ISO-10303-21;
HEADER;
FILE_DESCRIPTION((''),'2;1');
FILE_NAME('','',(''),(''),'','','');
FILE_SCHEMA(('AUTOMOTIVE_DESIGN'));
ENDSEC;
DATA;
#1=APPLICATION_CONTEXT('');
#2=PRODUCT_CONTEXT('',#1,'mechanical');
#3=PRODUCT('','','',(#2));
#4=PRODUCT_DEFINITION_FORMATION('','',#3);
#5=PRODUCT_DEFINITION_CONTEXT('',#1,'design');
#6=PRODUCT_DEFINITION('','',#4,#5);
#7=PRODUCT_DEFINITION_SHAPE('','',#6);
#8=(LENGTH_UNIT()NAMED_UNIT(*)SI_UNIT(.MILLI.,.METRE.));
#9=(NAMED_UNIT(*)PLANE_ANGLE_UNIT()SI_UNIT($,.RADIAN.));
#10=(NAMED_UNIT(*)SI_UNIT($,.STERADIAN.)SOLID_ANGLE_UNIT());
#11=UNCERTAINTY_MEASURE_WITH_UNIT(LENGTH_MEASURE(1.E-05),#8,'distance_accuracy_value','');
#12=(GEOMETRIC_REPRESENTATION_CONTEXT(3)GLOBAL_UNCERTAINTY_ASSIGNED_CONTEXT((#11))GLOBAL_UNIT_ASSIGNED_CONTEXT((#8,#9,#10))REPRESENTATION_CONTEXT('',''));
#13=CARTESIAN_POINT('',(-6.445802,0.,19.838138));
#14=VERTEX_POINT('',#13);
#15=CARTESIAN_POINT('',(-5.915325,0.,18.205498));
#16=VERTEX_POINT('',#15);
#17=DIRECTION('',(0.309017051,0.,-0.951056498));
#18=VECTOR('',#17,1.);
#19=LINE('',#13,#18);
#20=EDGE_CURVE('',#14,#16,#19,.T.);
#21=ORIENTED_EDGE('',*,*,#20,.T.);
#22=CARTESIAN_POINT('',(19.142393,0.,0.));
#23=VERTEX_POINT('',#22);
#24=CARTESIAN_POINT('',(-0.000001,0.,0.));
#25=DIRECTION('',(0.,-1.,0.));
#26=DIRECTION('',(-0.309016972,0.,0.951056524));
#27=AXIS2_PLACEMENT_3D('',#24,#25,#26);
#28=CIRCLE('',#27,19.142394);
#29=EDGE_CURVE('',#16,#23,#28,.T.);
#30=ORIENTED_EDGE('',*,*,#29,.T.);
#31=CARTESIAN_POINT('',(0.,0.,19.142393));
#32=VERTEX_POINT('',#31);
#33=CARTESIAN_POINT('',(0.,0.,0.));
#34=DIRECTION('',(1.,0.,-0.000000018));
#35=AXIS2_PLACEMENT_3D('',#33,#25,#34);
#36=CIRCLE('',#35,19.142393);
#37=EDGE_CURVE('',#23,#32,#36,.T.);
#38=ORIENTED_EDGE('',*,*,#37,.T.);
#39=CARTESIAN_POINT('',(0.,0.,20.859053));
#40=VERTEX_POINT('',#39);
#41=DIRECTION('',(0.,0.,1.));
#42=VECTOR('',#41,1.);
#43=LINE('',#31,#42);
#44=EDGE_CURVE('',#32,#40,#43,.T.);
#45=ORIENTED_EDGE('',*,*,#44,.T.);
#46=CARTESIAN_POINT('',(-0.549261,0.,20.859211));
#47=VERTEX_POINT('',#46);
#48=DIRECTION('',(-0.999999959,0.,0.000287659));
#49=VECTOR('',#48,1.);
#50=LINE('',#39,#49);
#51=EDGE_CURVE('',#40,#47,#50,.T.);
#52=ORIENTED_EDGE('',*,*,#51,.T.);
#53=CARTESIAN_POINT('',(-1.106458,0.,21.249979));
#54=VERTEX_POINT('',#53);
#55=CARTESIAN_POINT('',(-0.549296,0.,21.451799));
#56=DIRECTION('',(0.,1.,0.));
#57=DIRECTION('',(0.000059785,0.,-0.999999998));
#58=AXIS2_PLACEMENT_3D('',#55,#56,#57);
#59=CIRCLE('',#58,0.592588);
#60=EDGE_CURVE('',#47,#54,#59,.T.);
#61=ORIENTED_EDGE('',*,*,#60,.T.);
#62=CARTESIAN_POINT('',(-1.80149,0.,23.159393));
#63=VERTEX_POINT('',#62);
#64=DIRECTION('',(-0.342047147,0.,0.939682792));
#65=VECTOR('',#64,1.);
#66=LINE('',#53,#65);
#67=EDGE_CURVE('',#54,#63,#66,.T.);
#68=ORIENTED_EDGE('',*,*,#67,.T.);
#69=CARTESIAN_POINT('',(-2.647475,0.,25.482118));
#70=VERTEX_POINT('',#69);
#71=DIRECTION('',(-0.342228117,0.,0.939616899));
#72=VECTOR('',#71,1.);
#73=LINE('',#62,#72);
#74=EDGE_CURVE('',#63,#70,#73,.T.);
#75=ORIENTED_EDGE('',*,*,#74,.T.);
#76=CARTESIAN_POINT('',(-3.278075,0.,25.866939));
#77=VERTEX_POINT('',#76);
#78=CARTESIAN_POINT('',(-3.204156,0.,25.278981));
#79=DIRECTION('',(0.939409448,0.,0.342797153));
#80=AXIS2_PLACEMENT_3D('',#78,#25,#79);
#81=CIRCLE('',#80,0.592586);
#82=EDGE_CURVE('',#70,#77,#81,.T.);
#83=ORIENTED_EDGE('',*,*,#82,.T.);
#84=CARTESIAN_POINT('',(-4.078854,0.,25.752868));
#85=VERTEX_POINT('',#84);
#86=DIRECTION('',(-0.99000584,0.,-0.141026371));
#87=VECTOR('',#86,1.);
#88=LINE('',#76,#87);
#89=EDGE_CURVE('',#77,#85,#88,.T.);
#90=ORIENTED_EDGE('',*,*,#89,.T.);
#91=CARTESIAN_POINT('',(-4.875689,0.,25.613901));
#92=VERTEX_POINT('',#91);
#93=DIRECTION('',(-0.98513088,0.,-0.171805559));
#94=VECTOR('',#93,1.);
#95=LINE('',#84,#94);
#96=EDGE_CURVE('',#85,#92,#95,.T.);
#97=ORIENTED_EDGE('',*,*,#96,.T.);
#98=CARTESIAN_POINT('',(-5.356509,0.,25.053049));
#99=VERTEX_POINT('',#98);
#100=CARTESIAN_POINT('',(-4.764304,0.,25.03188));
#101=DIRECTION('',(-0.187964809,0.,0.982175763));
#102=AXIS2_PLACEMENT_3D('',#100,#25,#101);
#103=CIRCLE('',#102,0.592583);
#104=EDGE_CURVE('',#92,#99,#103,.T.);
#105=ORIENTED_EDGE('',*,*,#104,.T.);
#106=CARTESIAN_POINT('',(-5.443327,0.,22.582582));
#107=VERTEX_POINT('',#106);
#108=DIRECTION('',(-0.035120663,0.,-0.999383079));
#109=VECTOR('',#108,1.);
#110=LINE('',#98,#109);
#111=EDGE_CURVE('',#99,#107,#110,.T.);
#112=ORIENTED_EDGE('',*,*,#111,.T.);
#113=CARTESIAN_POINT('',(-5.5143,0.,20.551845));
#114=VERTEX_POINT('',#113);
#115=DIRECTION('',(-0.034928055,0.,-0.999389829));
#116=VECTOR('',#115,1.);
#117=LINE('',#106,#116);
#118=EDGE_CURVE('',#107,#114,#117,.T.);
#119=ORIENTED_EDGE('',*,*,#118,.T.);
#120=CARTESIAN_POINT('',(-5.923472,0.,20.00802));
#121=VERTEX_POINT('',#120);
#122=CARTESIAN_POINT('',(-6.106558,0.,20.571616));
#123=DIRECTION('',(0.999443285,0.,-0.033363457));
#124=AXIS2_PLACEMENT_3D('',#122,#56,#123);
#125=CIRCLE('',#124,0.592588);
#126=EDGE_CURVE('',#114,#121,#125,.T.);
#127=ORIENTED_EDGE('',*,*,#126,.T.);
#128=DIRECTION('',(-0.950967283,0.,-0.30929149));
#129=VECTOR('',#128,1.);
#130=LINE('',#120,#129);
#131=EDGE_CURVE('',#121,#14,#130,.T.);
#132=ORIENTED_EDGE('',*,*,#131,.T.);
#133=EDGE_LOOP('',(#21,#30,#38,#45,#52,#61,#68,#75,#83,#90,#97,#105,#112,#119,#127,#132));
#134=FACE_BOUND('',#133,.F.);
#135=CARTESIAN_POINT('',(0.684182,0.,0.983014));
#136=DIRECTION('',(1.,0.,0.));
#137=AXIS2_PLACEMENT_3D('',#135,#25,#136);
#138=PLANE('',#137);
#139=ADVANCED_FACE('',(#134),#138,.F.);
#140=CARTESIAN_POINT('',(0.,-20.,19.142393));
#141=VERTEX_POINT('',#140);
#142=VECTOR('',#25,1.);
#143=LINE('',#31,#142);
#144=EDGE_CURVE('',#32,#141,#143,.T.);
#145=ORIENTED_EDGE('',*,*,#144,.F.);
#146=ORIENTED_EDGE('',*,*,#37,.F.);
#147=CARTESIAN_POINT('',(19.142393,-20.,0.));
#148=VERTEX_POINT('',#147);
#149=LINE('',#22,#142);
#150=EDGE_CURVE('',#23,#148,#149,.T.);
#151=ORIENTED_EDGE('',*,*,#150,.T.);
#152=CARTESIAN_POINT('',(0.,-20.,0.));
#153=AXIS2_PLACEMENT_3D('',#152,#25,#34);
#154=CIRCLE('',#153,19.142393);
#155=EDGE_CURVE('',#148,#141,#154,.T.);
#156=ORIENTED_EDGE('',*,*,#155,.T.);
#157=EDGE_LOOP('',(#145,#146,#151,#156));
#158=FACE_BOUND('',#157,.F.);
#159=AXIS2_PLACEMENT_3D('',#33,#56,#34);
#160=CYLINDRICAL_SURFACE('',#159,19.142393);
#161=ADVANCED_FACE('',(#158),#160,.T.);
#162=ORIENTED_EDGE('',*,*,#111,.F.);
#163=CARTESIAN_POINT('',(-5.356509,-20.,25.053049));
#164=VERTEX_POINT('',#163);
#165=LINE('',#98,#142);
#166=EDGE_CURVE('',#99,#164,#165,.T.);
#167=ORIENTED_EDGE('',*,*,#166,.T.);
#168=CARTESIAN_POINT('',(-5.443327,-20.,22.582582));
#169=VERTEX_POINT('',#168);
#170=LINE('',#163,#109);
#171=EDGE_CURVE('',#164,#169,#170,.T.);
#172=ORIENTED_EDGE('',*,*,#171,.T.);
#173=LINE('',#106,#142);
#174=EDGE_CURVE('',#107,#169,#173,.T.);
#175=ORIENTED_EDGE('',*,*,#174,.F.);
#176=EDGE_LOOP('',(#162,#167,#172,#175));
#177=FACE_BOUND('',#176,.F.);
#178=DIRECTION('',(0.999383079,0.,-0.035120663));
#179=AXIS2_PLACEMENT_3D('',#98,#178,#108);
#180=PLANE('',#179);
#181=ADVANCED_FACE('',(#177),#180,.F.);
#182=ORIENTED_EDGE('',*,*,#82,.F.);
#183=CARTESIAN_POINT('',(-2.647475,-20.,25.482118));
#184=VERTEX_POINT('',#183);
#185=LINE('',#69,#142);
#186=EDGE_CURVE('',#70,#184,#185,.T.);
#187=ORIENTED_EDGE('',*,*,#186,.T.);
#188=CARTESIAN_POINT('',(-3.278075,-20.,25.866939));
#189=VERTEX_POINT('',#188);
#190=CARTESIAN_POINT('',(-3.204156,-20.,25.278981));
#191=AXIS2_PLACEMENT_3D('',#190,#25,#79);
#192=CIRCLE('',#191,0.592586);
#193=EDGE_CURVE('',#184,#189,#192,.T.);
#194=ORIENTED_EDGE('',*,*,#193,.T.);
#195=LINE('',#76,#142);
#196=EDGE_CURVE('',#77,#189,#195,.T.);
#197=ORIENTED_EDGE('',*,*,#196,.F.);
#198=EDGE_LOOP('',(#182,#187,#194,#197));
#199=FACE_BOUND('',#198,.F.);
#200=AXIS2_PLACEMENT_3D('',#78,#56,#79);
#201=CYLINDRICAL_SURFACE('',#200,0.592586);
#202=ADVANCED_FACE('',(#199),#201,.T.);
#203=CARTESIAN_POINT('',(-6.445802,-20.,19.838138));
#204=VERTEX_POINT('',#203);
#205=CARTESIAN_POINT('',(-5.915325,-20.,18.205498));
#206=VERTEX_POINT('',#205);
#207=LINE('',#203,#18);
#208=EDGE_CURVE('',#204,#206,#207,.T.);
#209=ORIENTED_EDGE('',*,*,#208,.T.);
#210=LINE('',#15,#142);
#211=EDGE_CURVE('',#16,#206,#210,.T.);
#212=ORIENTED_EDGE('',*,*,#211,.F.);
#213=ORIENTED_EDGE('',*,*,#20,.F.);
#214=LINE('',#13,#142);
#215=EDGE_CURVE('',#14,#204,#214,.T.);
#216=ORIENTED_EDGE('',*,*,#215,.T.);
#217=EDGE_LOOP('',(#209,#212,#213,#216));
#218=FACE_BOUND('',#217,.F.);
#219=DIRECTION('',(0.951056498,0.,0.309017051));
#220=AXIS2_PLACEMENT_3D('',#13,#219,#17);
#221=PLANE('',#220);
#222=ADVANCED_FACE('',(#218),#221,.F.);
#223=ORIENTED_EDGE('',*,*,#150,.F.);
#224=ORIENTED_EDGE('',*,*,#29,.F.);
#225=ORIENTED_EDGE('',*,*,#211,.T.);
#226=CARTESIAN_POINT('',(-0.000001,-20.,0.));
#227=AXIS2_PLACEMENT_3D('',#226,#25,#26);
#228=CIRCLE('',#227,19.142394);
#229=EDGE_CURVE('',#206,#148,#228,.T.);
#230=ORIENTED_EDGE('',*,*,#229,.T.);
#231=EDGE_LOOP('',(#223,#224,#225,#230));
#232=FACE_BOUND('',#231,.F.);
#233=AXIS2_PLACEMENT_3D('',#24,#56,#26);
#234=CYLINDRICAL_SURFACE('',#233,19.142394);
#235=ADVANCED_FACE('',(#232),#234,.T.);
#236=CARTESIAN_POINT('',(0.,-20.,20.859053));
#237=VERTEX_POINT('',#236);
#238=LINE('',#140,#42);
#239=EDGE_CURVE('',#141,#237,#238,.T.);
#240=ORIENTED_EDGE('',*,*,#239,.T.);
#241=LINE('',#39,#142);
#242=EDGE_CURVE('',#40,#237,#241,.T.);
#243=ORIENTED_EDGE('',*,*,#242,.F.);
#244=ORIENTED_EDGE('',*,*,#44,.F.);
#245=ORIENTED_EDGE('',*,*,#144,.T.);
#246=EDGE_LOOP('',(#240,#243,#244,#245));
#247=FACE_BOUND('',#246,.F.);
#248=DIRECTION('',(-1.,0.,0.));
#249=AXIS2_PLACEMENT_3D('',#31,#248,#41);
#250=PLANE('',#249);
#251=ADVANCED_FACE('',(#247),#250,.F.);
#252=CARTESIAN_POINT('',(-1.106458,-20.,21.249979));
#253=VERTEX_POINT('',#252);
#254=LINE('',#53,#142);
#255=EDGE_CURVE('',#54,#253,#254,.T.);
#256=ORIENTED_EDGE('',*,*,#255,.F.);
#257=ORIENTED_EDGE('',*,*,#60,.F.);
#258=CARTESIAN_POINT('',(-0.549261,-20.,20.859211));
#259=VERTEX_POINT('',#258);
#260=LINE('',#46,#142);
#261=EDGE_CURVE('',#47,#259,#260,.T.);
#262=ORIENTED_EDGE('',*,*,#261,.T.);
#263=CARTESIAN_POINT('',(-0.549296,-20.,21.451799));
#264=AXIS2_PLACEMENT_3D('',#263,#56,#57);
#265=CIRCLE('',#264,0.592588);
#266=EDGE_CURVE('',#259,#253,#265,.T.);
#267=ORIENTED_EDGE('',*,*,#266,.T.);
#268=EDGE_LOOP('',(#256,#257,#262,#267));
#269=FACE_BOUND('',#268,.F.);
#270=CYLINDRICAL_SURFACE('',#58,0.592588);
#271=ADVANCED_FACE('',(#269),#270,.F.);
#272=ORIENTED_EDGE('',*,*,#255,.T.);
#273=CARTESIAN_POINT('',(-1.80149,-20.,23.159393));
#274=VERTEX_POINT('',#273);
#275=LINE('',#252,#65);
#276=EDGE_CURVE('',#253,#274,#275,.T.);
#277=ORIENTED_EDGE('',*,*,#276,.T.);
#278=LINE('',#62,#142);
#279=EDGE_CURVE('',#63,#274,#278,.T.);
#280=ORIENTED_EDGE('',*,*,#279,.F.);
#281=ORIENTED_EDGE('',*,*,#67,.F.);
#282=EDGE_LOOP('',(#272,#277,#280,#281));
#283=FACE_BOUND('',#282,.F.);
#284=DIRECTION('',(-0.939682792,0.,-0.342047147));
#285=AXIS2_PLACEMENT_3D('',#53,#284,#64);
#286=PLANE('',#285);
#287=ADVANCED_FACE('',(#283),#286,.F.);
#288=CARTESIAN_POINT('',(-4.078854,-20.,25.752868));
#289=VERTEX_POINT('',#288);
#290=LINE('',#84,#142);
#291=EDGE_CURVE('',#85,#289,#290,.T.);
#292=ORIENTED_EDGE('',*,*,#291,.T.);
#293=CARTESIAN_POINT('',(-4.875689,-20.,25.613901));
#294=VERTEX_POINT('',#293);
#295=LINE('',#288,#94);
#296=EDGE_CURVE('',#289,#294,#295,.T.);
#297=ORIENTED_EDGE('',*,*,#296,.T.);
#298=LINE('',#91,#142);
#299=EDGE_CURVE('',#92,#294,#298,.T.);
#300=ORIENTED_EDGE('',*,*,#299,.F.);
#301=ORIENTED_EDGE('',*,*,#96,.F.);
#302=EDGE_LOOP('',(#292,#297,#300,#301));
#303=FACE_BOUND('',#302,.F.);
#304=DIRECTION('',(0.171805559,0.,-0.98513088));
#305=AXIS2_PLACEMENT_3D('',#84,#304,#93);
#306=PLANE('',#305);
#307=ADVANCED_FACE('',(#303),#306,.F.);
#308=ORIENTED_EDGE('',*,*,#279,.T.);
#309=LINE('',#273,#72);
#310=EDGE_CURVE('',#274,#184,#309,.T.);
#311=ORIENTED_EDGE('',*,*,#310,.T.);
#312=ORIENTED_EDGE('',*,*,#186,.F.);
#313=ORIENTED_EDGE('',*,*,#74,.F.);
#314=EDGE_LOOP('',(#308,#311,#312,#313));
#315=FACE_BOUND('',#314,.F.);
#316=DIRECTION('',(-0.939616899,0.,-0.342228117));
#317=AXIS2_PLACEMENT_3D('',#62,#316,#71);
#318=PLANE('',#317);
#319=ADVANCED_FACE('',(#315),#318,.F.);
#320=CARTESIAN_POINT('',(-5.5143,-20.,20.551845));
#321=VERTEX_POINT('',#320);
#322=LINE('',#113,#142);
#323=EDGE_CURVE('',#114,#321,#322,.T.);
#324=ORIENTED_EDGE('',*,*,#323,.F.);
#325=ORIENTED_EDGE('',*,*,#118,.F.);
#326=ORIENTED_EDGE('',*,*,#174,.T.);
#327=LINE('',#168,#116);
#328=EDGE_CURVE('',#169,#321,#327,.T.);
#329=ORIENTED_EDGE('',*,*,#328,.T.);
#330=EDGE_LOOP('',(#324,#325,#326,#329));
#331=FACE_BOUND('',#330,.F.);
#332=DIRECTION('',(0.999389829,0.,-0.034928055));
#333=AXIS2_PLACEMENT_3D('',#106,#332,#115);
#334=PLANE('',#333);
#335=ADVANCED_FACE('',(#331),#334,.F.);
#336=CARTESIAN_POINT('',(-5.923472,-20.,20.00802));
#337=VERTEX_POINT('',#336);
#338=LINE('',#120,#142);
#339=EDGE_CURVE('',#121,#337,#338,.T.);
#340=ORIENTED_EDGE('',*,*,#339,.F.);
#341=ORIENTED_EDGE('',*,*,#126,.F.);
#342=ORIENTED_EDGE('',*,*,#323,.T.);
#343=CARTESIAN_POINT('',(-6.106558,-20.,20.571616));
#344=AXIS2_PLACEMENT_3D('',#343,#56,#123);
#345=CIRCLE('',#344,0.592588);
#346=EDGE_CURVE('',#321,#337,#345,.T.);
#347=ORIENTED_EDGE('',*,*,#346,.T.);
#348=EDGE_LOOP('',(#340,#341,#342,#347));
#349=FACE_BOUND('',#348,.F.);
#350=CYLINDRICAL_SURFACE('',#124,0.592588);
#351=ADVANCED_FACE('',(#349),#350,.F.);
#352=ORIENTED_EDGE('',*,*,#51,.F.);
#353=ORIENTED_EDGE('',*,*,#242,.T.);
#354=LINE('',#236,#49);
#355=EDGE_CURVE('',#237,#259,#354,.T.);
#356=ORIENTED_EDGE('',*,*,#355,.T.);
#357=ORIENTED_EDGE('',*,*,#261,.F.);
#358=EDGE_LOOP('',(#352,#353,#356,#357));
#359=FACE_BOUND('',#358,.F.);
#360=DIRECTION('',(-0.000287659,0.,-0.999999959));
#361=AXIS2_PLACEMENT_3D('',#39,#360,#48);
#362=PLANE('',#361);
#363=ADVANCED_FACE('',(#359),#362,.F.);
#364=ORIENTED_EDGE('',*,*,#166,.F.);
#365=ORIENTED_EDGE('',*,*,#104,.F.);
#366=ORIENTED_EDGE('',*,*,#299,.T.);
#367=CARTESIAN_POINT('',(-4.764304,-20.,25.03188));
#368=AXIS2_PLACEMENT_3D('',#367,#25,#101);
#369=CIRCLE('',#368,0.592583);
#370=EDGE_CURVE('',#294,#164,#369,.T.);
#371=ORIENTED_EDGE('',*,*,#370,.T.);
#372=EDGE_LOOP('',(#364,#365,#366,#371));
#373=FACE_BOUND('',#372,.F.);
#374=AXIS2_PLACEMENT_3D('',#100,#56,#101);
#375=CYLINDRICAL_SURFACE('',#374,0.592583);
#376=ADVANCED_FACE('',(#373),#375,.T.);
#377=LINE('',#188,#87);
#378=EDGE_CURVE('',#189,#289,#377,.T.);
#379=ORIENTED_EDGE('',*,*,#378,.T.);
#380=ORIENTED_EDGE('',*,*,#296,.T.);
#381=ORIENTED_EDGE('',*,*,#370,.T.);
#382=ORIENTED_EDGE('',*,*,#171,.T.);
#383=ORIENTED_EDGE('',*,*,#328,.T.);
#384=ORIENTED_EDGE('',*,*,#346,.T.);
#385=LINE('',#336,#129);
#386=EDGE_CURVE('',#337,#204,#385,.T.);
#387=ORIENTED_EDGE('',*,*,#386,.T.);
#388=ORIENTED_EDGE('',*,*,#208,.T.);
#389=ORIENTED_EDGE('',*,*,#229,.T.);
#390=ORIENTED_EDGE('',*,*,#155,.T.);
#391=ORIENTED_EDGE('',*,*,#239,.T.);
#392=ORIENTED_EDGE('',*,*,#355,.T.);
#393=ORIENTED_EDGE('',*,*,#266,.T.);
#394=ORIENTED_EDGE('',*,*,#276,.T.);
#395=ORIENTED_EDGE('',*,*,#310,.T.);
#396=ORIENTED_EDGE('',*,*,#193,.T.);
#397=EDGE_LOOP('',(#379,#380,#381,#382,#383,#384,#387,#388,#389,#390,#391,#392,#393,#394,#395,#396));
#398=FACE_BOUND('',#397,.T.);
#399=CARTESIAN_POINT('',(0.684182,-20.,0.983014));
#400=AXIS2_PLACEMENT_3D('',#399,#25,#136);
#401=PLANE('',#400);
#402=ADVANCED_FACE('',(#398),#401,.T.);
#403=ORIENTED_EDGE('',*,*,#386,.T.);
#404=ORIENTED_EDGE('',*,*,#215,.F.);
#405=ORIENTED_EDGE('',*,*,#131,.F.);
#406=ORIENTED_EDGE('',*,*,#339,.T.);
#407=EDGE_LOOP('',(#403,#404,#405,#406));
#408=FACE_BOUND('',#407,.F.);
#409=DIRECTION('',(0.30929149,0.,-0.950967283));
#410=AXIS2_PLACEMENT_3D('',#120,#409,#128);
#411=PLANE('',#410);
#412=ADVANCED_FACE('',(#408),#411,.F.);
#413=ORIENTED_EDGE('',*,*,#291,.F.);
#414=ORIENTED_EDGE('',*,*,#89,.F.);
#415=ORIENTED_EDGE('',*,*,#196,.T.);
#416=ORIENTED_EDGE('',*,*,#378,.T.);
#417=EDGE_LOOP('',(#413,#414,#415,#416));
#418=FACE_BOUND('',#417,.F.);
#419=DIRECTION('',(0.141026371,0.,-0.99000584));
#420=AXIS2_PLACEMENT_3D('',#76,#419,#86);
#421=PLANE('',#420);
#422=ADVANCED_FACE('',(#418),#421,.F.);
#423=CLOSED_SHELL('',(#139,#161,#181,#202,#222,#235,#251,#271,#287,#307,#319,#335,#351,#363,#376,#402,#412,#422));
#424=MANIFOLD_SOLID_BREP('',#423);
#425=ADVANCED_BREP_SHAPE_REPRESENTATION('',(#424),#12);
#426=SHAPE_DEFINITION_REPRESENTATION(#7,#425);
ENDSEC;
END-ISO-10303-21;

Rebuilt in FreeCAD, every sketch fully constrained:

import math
import FreeCAD as App
import Part
import Sketcher

V = App.Vector
Q = App.Units.Quantity

doc = App.newDocument("Part")
body = doc.addObject("PartDesign::Body", "Body")

sketch1 = body.newObject("Sketcher::SketchObject", "Sketch")
sketch1.AttachmentSupport = (doc.getObject("XZ_Plane"), [""])
sketch1.MapMode = "FlatFace"
sketch1.addGeometry(Part.ArcOfCircle(Part.Circle(V(-0.000001, 0, 0), V(0, 0, 1), 19.142394), math.radians(107.999999), math.radians(360.000001)), False)
sketch1.addGeometry(Part.ArcOfCircle(Part.Circle(V(0, 0, 0), V(0, 0, 1), 19.142393), math.radians(-0.000001), math.radians(90.000001)), False)
sketch1.addGeometry(Part.LineSegment(V(0, 19.142393, 0), V(0, 20.859053, 0)), False)
sketch1.addGeometry(Part.LineSegment(V(0, 20.859053, 0), V(-0.549261, 20.859211, 0)), False)
sketch1.addGeometry(Part.ArcOfCircle(Part.Circle(V(-0.549296, 21.451799, 0), V(0, 0, 1), 0.592588), math.radians(-160.088176), math.radians(-89.996575)), False)
sketch1.addGeometry(Part.LineSegment(V(-1.106458, 21.249979, 0), V(-1.80149, 23.159393, 0)), False)
sketch1.addGeometry(Part.LineSegment(V(-1.80149, 23.159393, 0), V(-2.647475, 25.482118, 0)), False)
sketch1.addGeometry(Part.ArcOfCircle(Part.Circle(V(-3.204156, 25.278981, 0), V(0, 0, 1), 0.592586), math.radians(20.047384), math.radians(97.165709)), False)
sketch1.addGeometry(Part.LineSegment(V(-3.278075, 25.866939, 0), V(-4.078854, 25.752868, 0)), False)
sketch1.addGeometry(Part.LineSegment(V(-4.078854, 25.752868, 0), V(-4.875689, 25.613901, 0)), False)
sketch1.addGeometry(Part.ArcOfCircle(Part.Circle(V(-4.764304, 25.03188, 0), V(0, 0, 1), 0.592583), math.radians(100.834037), math.radians(177.952808)), False)
sketch1.addGeometry(Part.LineSegment(V(-5.356509, 25.053049, 0), V(-5.443327, 22.582582, 0)), False)
sketch1.addGeometry(Part.LineSegment(V(-5.443327, 22.582582, 0), V(-5.5143, 20.551845, 0)), False)
sketch1.addGeometry(Part.ArcOfCircle(Part.Circle(V(-6.106558, 20.571616, 0), V(0, 0, 1), 0.592588), math.radians(-72.003406), math.radians(-1.91194)), False)
sketch1.addGeometry(Part.LineSegment(V(-5.923472, 20.00802, 0), V(-6.445802, 19.838138, 0)), False)
sketch1.addGeometry(Part.LineSegment(V(-6.445802, 19.838138, 0), V(-5.915325, 18.205498, 0)), False)
sketch1.addConstraint(Sketcher.Constraint("Tangent", 0, 2, 1, 1))
sketch1.addConstraint(Sketcher.Constraint("Coincident", 1, 2, 2, 1))
sketch1.addConstraint(Sketcher.Constraint("Coincident", 2, 2, 3, 1))
sketch1.addConstraint(Sketcher.Constraint("Coincident", 3, 2, 4, 2))
sketch1.addConstraint(Sketcher.Constraint("Coincident", 4, 1, 5, 1))
sketch1.addConstraint(Sketcher.Constraint("Coincident", 5, 2, 6, 1))
sketch1.addConstraint(Sketcher.Constraint("Coincident", 6, 2, 7, 1))
sketch1.addConstraint(Sketcher.Constraint("Coincident", 7, 2, 8, 1))
sketch1.addConstraint(Sketcher.Constraint("Coincident", 8, 2, 9, 1))
sketch1.addConstraint(Sketcher.Constraint("Coincident", 9, 2, 10, 1))
sketch1.addConstraint(Sketcher.Constraint("Coincident", 10, 2, 11, 1))
sketch1.addConstraint(Sketcher.Constraint("Coincident", 11, 2, 12, 1))
sketch1.addConstraint(Sketcher.Constraint("Coincident", 12, 2, 13, 2))
sketch1.addConstraint(Sketcher.Constraint("Coincident", 13, 1, 14, 1))
sketch1.addConstraint(Sketcher.Constraint("Coincident", 14, 2, 15, 1))
sketch1.addConstraint(Sketcher.Constraint("Coincident", 15, 2, 0, 1))
sketch1.addConstraint(Sketcher.Constraint("Vertical", 2))
sketch1.addConstraint(Sketcher.Constraint("Coincident", 0, 3, -1, 1))
sketch1.addConstraint(Sketcher.Constraint("Equal", 0, 1))
sketch1.addConstraint(Sketcher.Constraint("Equal", 4, 7))
sketch1.addConstraint(Sketcher.Constraint("Equal", 7, 13))
sketch1.addConstraint(Sketcher.Constraint("PointOnObject", 0, 2, -1))
sketch1.addConstraint(Sketcher.Constraint("PointOnObject", 1, 2, -2))
sketch1.addConstraint(Sketcher.Constraint("Equal", 8, 9))
sketch1.addConstraint(Sketcher.Constraint("Equal", 6, 11))
sketch1.addConstraint(Sketcher.Constraint("Equal", 5, 12))
sketch1.addConstraint(Sketcher.Constraint("Equal", 3, 14))
sketch1.addConstraint(Sketcher.Constraint("Angle", 15, Q("-71.999997 deg")))
sketch1.addConstraint(Sketcher.Constraint("Radius", 13, Q("0.592588 mm")))
sketch1.addConstraint(Sketcher.Constraint("Radius", 0, Q("19.142394 mm")))
sketch1.addConstraint(Sketcher.Constraint("Radius", 10, Q("0.592583 mm")))
sketch1.addConstraint(Sketcher.Constraint("DistanceX", 15, 2, 11, 2, Q("0.471998 mm")))
sketch1.addConstraint(Sketcher.Constraint("DistanceY", 2, 1, 2, 2, Q("1.71666 mm")))
sketch1.addConstraint(Sketcher.Constraint("DistanceY", -1, 1, 4, 3, Q("21.451799 mm")))
sketch1.addConstraint(Sketcher.Constraint("DistanceY", -1, 1, 9, 2, Q("25.613901 mm")))
sketch1.addConstraint(Sketcher.Constraint("DistanceX", 12, 2, -1, 1, Q("5.5143 mm")))
sketch1.addConstraint(Sketcher.Constraint("DistanceX", 14, 2, -1, 1, Q("6.445802 mm")))
sketch1.addConstraint(Sketcher.Constraint("DistanceY", 10, 3, 7, 3, Q("0.247101 mm")))
sketch1.addConstraint(Sketcher.Constraint("DistanceX", 7, 3, 4, 1, Q("2.097698 mm")))
sketch1.addConstraint(Sketcher.Constraint("DistanceX", 7, 2, 6, 2, Q("0.6306 mm")))
sketch1.addConstraint(Sketcher.Constraint("DistanceY", 11, 2, 10, 3, Q("2.449298 mm")))
sketch1.addConstraint(Sketcher.Constraint("Distance", 3, Q("0.549261 mm")))
sketch1.addConstraint(Sketcher.Constraint("Distance", 6, Q("2.471992 mm")))
sketch1.addConstraint(Sketcher.Constraint("Distance", 15, Q("1.716659 mm")))
sketch1.addConstraint(Sketcher.Constraint("DistanceY", -1, 1, 7, 3, Q("25.278981 mm")))
sketch1.addConstraint(Sketcher.Constraint("DistanceX", 13, 3, -1, 1, Q("6.106558 mm")))
sketch1.addConstraint(Sketcher.Constraint("DistanceY", -1, 1, 4, 1, Q("21.249979 mm")))
sketch1.addConstraint(Sketcher.Constraint("DistanceX", 5, 2, -1, 1, Q("1.80149 mm")))
sketch1.addConstraint(Sketcher.Constraint("DistanceY", -1, 1, 6, 2, Q("25.482118 mm")))
sketch1.addConstraint(Sketcher.Constraint("DistanceX", 9, 2, -1, 1, Q("4.875689 mm")))
sketch1.addConstraint(Sketcher.Constraint("DistanceX", 10, 3, 7, 3, Q("1.560148 mm")))
sketch1.addConstraint(Sketcher.Constraint("DistanceX", 8, 2, 7, 2, Q("0.800779 mm")))
pad1 = body.newObject("PartDesign::Pad", "Pad")
pad1.Profile = sketch1
pad1.Length = 20

doc.recompute()
